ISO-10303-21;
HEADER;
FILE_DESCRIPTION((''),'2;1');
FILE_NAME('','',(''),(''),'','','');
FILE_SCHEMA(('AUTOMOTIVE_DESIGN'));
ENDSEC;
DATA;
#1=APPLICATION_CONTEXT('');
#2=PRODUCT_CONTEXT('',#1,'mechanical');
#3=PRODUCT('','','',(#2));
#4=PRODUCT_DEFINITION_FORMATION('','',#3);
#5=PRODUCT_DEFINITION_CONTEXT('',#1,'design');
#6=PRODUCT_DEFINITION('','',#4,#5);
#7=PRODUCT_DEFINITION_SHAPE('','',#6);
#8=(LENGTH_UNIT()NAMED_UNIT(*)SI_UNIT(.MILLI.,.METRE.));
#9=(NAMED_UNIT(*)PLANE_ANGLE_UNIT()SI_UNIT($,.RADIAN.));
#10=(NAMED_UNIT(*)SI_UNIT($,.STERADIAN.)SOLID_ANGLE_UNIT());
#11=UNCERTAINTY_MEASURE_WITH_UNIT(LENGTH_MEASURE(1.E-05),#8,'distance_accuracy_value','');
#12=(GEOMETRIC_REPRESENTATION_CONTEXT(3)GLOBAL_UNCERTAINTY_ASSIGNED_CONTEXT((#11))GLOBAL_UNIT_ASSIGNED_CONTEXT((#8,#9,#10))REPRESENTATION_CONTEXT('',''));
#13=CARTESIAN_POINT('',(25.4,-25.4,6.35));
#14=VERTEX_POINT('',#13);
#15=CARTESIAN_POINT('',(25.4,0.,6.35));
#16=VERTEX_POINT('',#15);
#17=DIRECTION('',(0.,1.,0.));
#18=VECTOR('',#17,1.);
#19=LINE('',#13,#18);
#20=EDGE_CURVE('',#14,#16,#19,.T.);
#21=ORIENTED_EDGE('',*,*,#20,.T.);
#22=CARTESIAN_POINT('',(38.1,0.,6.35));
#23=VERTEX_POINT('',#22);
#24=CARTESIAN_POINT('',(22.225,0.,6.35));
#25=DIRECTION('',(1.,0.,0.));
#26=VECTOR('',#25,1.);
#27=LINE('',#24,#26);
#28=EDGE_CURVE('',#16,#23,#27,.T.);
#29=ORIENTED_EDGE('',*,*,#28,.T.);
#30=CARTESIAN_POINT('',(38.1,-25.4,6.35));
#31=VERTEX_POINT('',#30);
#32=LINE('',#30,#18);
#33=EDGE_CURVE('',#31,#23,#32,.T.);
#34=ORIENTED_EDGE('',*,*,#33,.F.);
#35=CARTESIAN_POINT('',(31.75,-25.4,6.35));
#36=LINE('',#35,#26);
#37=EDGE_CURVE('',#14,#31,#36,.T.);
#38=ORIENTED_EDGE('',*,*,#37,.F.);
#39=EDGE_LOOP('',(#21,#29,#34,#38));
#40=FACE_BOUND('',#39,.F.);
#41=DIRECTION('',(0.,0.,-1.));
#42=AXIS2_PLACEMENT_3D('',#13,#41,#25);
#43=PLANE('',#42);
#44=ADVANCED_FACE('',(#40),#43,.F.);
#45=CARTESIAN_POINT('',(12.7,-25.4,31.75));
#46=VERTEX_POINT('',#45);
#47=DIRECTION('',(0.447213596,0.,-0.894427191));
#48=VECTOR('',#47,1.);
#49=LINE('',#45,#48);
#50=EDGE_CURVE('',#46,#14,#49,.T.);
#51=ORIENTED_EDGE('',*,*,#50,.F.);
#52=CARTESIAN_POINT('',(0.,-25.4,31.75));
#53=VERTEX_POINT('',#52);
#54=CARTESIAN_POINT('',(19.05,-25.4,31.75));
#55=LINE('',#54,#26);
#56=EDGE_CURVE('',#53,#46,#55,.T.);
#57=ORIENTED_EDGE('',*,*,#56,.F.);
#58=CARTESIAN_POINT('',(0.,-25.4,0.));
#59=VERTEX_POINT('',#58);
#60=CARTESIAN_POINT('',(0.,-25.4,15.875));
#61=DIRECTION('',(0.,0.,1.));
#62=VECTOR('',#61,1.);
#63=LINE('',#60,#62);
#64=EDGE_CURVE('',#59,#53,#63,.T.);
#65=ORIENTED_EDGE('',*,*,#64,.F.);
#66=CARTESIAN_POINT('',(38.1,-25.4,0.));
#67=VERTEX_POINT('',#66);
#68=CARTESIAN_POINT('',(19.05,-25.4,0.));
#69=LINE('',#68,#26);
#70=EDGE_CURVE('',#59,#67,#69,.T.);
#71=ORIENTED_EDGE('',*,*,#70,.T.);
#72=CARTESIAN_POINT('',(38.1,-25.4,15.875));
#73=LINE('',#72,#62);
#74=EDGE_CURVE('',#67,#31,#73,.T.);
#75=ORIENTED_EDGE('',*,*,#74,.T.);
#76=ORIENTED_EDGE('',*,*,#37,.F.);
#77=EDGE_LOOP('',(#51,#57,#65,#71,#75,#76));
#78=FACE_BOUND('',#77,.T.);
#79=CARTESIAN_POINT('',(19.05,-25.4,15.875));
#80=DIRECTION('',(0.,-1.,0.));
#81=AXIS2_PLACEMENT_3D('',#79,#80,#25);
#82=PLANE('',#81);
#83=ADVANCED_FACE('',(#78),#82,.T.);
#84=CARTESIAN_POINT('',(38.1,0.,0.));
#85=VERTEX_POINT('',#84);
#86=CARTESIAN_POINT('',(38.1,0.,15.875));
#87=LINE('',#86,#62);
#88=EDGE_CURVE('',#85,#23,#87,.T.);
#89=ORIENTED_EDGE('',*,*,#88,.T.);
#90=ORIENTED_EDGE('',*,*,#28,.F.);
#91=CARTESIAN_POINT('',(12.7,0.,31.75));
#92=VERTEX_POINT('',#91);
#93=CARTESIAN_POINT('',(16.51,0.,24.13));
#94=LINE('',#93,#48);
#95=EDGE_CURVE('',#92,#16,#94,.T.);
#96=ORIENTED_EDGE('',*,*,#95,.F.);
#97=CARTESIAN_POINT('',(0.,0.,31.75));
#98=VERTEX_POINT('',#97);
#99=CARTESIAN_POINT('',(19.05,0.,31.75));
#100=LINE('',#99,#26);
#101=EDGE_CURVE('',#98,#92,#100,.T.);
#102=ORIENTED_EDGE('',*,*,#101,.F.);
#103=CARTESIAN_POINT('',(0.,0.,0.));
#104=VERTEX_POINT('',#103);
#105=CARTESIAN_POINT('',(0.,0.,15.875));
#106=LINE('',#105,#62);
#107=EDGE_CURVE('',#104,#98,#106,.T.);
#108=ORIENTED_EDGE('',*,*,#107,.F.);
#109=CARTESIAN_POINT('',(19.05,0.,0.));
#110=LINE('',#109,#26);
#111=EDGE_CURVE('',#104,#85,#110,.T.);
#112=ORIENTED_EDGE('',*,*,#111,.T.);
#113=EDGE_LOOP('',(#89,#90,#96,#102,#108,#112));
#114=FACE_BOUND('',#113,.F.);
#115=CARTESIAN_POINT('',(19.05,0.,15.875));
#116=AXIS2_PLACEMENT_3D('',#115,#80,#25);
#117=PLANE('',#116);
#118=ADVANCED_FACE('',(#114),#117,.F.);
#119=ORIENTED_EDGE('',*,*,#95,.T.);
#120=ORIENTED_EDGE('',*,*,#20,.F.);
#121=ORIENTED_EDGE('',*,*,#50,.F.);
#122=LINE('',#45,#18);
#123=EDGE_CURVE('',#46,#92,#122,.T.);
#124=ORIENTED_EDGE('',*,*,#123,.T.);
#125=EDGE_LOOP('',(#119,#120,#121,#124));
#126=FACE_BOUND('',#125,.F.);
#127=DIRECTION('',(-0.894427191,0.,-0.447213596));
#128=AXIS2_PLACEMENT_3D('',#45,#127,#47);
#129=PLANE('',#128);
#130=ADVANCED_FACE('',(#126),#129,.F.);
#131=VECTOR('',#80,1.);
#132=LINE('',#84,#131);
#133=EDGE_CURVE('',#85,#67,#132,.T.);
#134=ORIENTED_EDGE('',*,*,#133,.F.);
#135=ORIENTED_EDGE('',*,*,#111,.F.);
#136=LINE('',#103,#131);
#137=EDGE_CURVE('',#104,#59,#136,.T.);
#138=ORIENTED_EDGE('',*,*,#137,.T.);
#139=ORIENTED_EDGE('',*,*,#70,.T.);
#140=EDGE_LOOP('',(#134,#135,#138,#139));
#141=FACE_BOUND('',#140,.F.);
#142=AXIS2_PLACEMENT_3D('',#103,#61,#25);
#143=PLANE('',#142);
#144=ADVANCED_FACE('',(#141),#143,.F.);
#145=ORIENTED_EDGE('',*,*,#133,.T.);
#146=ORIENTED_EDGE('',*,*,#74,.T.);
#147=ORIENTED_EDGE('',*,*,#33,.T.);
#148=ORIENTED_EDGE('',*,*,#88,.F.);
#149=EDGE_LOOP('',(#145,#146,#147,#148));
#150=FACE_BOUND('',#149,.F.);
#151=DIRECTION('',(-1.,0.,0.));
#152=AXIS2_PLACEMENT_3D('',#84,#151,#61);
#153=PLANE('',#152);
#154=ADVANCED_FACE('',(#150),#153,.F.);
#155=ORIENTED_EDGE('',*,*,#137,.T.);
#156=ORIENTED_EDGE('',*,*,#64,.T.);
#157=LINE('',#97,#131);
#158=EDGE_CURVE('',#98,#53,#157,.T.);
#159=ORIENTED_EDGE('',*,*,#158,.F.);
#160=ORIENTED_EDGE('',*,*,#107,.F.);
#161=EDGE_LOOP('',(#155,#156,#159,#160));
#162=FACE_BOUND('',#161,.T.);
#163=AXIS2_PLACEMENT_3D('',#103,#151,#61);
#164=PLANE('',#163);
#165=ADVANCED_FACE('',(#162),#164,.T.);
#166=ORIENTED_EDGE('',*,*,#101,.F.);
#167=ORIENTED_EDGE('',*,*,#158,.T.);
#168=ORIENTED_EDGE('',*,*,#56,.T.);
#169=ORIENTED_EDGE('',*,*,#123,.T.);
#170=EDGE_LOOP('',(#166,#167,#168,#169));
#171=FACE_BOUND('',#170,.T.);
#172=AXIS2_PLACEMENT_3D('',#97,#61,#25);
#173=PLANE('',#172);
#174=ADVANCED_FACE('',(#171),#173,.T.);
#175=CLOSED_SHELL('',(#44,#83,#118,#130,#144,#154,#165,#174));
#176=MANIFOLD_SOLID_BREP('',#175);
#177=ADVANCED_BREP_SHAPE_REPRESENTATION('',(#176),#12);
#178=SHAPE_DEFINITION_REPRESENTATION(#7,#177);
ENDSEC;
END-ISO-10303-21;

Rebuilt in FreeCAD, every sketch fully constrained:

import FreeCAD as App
import Part
import Sketcher
Q = App.Units.Quantity


def add_polygon(sketch, points):
    """Adds a closed chain of lines whose ends are joined by coincident constraints."""
    first, n = sketch.GeometryCount, len(points)
    for a, b in zip(points, points[1:] + points[:1]):
        sketch.addGeometry(Part.LineSegment(App.Vector(*a, 0), App.Vector(*b, 0)), False)
    for i in range(n):
        sketch.addConstraint(Sketcher.Constraint("Coincident", first + i, 2, first + (i + 1) % n, 1))

doc = App.newDocument("Part")
params = doc.addObject("Spreadsheet::Sheet", "Params")
for row, (alias, value) in enumerate([
    ("sketch1_width", "1.5 in"),
    ("sketch1_height", "1.25 in"),
    ("pad1_length", "1 in"),
    ("sketch2_width", "1 in"),
    ("sketch2_width2", "0.5 in"),
], start=1):
    params.set(f"A{row}", alias)
    params.set(f"B{row}", "=" + value)
    params.setAlias(f"B{row}", alias)

body = doc.addObject("PartDesign::Body", "Body")

# Sketch on XZ plane
sketch1 = body.newObject("Sketcher::SketchObject", "Sketch")
sketch1.AttachmentSupport = (doc.getObject("XZ_Plane"), [""])
sketch1.MapMode = "FlatFace"
add_polygon(sketch1, [(0, 31.75), (0, 0), (38.1, 0), (38.1, 31.75)])  # lines 0-3
sketch1.addConstraint([
    Sketcher.Constraint("Vertical", 0),
    Sketcher.Constraint("Horizontal", 1),
    Sketcher.Constraint("Vertical", 2),
    Sketcher.Constraint("Horizontal", 3),
    Sketcher.Constraint("Coincident", 0, 2, -1, 1),
    Sketcher.Constraint("DistanceX", 1, 1, 1, 2, Q("1.5 in")),
    Sketcher.Constraint("DistanceY", 0, 2, 0, 1, Q("1.25 in")),
])
sketch1.setExpression("Constraints[9]", "Params.sketch1_width")
sketch1.setExpression("Constraints[10]", "Params.sketch1_height")
pad1 = body.newObject("PartDesign::Pad", "Pad")
pad1.Profile = sketch1
pad1.setExpression("Length", "Params.pad1_length")

# Sketch on XZ plane
sketch2 = body.newObject("Sketcher::SketchObject", "Sketch001")
sketch2.AttachmentSupport = (doc.getObject("XZ_Plane"), [""])
sketch2.MapMode = "FlatFace"
sketch2.AttachmentOffset = App.Placement(App.Vector(0, 0, 1 * 25.4), App.Rotation())
add_polygon(sketch2, [(12.7, 31.75), (25.4, 6.35), (38.1, 6.35), (38.1, 31.75)])  # lines 0-3
sketch2.addConstraint([
    Sketcher.Constraint("Horizontal", 1),
    Sketcher.Constraint("Vertical", 2),
    Sketcher.Constraint("Horizontal", 3),
    Sketcher.Constraint("Equal", 3, 2),
    Sketcher.Constraint("DistanceX", 3, 2, 3, 1, Q("1 in")),
    Sketcher.Constraint("DistanceX", 1, 1, 1, 2, Q("0.5 in")),
    Sketcher.Constraint("DistanceX", -1, 1, 0, 2, Q("1 in")),
    Sketcher.Constraint("DistanceY", -1, 1, 0, 2, Q("0.25 in")),
])
sketch2.setExpression("Constraints[8]", "Params.sketch2_width")
sketch2.setExpression("Constraints[9]", "Params.sketch2_width2")
pocket1 = body.newObject("PartDesign::Pocket", "Pocket")
pocket1.Profile = sketch2
pocket1.Type = "ThroughAll"

doc.recompute()
